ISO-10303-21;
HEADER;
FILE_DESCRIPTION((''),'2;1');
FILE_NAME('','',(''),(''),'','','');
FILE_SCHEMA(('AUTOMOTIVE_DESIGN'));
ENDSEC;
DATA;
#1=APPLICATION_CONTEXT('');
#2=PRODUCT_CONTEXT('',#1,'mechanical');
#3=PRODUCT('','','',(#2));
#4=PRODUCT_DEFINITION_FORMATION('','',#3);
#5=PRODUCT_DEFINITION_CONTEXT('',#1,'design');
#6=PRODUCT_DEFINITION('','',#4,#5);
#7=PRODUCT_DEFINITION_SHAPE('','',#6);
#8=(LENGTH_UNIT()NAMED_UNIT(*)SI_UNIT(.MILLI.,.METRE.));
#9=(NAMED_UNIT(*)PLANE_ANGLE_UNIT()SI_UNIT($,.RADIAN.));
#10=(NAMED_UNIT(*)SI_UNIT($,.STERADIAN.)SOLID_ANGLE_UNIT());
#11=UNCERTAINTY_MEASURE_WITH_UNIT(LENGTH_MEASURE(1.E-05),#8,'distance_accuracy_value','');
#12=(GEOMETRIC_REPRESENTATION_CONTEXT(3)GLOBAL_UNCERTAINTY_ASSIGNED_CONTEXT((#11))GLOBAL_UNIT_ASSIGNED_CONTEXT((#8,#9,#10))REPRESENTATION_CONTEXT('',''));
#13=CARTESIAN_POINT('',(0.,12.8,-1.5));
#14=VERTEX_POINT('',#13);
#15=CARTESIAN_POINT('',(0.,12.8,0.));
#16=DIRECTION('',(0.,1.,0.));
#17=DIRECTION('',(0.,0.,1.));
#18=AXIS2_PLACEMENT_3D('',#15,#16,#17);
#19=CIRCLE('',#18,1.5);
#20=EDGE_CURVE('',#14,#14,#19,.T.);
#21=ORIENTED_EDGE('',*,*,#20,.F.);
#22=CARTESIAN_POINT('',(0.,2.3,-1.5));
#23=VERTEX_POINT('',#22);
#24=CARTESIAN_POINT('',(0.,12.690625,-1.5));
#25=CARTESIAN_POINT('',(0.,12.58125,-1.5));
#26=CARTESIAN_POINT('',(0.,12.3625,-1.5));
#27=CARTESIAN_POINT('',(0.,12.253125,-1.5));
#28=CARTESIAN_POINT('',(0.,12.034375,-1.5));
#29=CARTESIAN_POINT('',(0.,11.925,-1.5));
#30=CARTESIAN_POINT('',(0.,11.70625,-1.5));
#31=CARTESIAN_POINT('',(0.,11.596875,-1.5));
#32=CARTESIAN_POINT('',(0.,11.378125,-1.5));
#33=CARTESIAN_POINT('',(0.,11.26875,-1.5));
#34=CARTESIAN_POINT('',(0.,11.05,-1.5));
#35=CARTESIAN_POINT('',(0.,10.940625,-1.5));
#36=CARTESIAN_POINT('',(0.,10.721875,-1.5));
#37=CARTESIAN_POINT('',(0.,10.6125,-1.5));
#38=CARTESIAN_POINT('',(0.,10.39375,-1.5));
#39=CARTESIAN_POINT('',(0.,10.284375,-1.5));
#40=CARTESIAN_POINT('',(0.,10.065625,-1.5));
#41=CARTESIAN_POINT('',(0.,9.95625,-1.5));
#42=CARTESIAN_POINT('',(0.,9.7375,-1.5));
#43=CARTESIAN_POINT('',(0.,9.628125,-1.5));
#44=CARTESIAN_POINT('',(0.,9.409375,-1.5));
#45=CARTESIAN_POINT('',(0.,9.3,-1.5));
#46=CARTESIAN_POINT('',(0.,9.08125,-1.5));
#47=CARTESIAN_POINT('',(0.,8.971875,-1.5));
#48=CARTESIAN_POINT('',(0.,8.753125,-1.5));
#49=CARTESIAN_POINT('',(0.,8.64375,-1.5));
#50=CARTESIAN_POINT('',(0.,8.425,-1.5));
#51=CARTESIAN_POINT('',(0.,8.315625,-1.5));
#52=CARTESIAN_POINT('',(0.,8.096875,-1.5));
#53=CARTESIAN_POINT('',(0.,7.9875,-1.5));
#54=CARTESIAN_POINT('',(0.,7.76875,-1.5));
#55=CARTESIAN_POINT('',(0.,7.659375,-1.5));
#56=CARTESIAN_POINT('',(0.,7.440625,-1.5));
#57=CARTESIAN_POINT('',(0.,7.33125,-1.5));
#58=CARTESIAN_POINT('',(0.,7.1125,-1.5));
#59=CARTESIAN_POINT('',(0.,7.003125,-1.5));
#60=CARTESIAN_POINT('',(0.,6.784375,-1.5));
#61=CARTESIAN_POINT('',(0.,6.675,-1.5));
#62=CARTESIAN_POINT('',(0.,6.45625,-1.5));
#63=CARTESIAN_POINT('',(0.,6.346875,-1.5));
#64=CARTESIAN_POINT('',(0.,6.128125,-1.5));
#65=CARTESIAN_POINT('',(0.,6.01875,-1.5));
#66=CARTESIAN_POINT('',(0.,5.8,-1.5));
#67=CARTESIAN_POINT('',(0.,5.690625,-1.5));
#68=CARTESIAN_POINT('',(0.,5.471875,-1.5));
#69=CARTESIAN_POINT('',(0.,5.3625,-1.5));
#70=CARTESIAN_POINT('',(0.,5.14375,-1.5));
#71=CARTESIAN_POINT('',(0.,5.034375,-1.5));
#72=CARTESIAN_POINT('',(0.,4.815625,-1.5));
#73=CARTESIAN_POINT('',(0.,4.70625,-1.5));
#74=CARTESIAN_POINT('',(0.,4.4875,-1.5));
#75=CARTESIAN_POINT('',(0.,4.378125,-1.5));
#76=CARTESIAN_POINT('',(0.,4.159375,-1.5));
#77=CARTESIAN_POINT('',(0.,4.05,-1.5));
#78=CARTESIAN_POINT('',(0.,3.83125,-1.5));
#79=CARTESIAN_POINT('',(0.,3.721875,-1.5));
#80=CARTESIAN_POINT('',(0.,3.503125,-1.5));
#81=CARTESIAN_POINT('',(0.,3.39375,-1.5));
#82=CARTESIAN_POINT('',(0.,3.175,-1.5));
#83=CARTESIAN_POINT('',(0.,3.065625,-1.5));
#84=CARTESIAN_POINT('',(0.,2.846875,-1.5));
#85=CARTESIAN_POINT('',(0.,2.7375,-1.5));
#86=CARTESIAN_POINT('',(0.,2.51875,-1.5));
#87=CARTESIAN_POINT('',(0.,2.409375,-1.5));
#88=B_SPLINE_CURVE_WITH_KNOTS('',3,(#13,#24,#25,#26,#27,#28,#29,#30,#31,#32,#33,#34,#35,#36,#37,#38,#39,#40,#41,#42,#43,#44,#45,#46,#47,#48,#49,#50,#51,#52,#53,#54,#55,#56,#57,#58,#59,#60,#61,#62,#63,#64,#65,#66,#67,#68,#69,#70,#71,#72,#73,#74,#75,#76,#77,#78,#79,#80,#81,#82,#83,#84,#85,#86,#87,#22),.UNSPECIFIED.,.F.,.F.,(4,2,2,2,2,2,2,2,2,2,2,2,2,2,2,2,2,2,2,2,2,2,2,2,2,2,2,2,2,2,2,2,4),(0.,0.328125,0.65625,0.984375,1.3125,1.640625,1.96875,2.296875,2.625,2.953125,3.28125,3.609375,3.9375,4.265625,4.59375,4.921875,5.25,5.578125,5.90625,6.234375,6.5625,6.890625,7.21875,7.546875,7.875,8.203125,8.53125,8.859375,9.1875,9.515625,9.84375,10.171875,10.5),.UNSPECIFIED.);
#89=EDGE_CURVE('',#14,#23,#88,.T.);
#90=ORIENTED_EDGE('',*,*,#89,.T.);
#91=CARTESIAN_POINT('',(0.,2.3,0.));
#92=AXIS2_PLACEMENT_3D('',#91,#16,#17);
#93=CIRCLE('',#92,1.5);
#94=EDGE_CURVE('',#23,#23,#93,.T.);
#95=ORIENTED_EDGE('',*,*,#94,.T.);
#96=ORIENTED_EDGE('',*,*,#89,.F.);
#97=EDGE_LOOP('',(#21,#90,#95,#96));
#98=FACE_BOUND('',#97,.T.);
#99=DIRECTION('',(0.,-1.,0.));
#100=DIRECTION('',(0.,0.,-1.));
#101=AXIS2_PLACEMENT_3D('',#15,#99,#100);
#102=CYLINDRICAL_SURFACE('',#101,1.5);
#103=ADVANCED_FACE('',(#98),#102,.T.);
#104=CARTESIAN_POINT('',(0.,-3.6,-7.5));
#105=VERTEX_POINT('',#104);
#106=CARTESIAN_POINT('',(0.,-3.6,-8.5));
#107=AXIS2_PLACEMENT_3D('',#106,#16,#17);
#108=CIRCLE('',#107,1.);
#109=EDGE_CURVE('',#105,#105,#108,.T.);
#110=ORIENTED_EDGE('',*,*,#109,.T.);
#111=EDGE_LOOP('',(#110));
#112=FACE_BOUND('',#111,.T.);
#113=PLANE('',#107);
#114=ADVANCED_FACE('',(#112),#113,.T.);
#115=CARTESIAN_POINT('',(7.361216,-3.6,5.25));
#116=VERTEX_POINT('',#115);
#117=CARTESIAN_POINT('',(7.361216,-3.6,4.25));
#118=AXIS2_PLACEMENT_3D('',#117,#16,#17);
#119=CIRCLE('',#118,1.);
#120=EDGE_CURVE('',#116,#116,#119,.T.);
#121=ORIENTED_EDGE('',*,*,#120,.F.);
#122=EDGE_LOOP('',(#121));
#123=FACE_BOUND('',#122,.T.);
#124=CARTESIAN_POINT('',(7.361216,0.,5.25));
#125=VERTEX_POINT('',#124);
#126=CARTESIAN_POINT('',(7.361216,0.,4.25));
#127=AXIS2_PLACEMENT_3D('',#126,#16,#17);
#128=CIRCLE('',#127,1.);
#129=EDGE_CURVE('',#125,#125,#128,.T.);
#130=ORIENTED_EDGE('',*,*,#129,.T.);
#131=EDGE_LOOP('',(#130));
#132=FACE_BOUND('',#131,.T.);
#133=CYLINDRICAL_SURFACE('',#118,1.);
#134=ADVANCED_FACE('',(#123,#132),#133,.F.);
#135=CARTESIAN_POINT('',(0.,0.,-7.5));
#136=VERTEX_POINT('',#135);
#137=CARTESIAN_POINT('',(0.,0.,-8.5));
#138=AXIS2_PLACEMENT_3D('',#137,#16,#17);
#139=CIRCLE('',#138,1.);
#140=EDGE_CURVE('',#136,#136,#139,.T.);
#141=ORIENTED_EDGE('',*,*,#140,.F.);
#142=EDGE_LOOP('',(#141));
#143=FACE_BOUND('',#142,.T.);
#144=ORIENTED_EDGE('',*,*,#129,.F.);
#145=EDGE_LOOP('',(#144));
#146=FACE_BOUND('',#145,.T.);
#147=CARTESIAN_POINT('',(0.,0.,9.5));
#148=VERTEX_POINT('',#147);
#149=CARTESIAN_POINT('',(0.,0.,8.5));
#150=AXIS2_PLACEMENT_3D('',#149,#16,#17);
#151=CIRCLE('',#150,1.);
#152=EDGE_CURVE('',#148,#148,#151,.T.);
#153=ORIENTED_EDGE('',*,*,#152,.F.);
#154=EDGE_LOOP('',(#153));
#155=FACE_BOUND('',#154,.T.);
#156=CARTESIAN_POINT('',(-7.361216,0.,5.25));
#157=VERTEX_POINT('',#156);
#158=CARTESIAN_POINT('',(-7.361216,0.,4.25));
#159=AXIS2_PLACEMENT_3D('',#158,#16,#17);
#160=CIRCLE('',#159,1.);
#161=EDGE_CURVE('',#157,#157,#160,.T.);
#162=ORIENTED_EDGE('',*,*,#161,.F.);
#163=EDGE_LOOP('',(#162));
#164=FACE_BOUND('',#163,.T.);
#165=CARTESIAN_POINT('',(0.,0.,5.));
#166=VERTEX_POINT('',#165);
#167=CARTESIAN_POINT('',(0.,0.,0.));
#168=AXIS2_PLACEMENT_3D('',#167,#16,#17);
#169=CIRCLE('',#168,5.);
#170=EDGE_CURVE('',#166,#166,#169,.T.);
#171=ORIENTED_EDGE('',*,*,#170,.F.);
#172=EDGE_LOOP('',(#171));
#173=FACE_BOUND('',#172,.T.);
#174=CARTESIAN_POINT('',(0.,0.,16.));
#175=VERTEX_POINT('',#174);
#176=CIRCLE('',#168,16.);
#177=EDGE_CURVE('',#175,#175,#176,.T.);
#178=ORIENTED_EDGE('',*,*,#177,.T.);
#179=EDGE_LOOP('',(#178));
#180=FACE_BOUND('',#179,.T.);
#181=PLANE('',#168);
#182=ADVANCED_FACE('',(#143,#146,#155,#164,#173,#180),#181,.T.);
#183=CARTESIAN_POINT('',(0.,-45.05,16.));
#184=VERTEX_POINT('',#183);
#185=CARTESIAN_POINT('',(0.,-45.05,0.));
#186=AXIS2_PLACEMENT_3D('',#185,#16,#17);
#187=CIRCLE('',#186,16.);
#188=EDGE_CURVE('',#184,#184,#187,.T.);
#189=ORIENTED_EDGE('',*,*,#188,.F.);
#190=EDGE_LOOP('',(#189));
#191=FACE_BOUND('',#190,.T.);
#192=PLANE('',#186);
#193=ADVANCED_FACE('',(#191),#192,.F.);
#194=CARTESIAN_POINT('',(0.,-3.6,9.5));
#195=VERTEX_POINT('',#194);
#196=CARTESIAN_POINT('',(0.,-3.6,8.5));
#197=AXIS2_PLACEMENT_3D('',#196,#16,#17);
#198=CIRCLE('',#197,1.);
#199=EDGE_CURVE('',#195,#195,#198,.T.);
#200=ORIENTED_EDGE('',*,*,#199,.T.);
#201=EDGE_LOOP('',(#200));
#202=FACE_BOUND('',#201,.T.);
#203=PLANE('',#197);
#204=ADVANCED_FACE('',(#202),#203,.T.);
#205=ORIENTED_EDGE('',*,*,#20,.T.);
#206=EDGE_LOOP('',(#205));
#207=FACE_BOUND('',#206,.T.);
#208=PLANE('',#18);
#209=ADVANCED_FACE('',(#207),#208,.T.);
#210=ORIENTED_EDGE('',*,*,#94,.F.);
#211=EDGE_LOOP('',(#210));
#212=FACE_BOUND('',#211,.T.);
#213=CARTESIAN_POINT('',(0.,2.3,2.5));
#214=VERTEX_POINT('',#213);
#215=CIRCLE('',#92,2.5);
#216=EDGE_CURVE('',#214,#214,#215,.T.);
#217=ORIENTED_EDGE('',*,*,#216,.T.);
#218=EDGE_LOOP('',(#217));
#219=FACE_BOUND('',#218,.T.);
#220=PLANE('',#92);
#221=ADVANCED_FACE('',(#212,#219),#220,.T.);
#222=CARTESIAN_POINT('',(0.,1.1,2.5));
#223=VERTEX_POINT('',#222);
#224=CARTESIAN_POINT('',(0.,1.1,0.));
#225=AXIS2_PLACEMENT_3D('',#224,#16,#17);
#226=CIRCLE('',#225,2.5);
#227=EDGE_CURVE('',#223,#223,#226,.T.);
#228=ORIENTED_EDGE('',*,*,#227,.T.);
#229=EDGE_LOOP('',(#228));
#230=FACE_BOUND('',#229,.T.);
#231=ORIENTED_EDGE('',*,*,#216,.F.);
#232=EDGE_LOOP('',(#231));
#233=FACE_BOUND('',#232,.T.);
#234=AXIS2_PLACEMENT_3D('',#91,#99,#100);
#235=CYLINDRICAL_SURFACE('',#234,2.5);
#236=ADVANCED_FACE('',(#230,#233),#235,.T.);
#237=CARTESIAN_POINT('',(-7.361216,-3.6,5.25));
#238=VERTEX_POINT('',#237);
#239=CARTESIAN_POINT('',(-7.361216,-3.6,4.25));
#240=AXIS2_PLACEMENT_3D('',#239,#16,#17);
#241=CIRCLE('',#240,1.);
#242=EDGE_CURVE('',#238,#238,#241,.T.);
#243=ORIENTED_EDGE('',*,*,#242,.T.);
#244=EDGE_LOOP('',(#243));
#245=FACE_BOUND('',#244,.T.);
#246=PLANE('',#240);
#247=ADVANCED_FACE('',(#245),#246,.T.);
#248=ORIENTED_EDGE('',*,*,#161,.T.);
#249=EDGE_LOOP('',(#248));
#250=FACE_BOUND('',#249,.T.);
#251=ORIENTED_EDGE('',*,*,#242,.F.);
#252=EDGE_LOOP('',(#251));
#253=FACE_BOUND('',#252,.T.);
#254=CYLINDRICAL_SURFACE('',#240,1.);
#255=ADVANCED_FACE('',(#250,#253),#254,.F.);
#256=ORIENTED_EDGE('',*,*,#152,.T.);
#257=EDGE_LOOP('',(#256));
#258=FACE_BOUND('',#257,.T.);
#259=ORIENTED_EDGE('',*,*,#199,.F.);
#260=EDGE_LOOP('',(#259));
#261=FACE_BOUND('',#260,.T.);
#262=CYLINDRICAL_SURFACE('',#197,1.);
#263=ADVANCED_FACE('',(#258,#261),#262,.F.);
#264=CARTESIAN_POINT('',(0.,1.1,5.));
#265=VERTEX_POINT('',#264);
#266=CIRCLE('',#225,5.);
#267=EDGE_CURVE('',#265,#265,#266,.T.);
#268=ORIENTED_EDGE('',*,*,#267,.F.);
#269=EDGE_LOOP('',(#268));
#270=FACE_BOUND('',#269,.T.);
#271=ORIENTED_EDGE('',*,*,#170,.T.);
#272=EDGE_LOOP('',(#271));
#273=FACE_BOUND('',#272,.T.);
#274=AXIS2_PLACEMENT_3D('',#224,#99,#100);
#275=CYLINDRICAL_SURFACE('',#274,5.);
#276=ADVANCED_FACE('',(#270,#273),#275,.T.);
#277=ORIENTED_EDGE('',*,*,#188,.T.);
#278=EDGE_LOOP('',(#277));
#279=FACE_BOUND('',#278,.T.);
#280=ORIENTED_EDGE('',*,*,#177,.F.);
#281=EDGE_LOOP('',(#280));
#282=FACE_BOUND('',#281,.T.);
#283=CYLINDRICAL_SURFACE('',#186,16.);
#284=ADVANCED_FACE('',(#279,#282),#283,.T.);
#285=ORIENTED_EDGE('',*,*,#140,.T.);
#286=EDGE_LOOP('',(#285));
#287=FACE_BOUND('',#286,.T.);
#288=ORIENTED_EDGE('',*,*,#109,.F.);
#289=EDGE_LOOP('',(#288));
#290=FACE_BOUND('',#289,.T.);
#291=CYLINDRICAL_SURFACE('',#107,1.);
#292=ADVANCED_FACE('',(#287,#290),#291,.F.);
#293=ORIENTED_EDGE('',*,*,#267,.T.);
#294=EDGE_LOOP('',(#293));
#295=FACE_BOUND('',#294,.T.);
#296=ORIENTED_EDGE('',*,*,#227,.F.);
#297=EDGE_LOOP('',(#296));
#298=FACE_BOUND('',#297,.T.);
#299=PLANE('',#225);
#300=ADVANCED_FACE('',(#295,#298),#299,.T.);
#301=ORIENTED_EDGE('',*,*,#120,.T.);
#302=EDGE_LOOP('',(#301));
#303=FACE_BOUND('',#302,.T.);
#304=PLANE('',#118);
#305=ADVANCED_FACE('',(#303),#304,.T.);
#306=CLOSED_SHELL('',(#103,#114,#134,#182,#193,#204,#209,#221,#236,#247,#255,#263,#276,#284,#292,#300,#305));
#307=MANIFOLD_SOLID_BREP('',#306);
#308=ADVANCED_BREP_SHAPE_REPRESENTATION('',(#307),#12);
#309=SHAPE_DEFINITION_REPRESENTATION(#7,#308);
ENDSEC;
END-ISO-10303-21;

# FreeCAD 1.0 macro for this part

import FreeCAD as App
import Part
import Sketcher
from FreeCAD import Vector

doc = App.newDocument("Part")
body = doc.addObject("PartDesign::Body", "Body")

sketch1 = doc.addObject("Sketcher::SketchObject", "Sketch")
body.addObject(sketch1)
sketch1.AttachmentSupport = (doc.XZ_Plane, [""])
sketch1.MapMode = "FlatFace"
sketch1.addGeometry(Part.Circle(Vector(0, 0, 0), Vector(0, 0, 1), 16), False)
sketch1.addConstraint([
    Sketcher.Constraint("Coincident", 0, 3, -1, 1),
    Sketcher.Constraint("Diameter", 0, 32.0),
])
pad1 = doc.addObject("PartDesign::Pad", "Pad")
body.addObject(pad1)
pad1.Profile = sketch1
pad1.Length = 45.05

sketch2 = doc.addObject("Sketcher::SketchObject", "Sketch001")
body.addObject(sketch2)
sketch2.AttachmentSupport = (doc.XZ_Plane, [""])
sketch2.MapMode = "FlatFace"
sketch2.addGeometry(Part.Circle(Vector(0, 0, 0), Vector(0, 0, 1), 5), False)
sketch2.addConstraint([
    Sketcher.Constraint("Coincident", 0, 3, -1, 1),
    Sketcher.Constraint("Diameter", 0, 10.0),
])
pad2 = doc.addObject("PartDesign::Pad", "Pad001")
body.addObject(pad2)
pad2.Profile = sketch2
pad2.Length = 1.1
pad2.Reversed = True

sketch3 = doc.addObject("Sketcher::SketchObject", "Sketch002")
body.addObject(sketch3)
sketch3.AttachmentSupport = (doc.XZ_Plane, [""])
sketch3.MapMode = "FlatFace"
sketch3.AttachmentOffset = App.Placement(Vector(0, 0, -1.1), App.Rotation())
sketch3.addGeometry(Part.Circle(Vector(0, 0, 0), Vector(0, 0, 1), 2.5), False)
sketch3.addConstraint([
    Sketcher.Constraint("Coincident", 0, 3, -1, 1),
    Sketcher.Constraint("Diameter", 0, 5.0),
])
pad3 = doc.addObject("PartDesign::Pad", "Pad002")
body.addObject(pad3)
pad3.Profile = sketch3
pad3.Length = 1.2
pad3.Reversed = True

sketch4 = doc.addObject("Sketcher::SketchObject", "Sketch003")
body.addObject(sketch4)
sketch4.AttachmentSupport = (doc.XZ_Plane, [""])
sketch4.MapMode = "FlatFace"
sketch4.AttachmentOffset = App.Placement(Vector(0, 0, -2.3), App.Rotation())
sketch4.addGeometry(Part.Circle(Vector(0, 0, 0), Vector(0, 0, 1), 1.5), False)
sketch4.addConstraint([
    Sketcher.Constraint("Coincident", 0, 3, -1, 1),
    Sketcher.Constraint("Diameter", 0, 3.0),
])
pad4 = doc.addObject("PartDesign::Pad", "Pad003")
body.addObject(pad4)
pad4.Profile = sketch4
pad4.Length = 10.5
pad4.Reversed = True

sketch5 = doc.addObject("Sketcher::SketchObject", "Sketch004")
body.addObject(sketch5)
sketch5.AttachmentSupport = (doc.XZ_Plane, [""])
sketch5.MapMode = "FlatFace"
sketch5.addGeometry([
    Part.Circle(Vector(0, -8.5, 0), Vector(0, 0, 1), 1),
    Part.Circle(Vector(0, 8.5, 0), Vector(0, 0, 1), 1),
    Part.Circle(Vector(-7.4, 4.2, 0), Vector(0, 0, 1), 1),
    Part.Circle(Vector(7.4, 4.2, 0), Vector(0, 0, 1), 1),
], False)
sketch5.addConstraint([
    Sketcher.Constraint("Equal", 0, 1),
    Sketcher.Constraint("Equal", 1, 2),
    Sketcher.Constraint("Equal", 2, 3),
    Sketcher.Constraint("Symmetric", 0, 3, 1, 3, -1, 1),
    Sketcher.Constraint("Symmetric", 2, 3, 3, 3, -2),
    Sketcher.Constraint("PointOnObject", 0, 3, -2),
    Sketcher.Constraint("Diameter", 0, 2.0),
    Sketcher.Constraint("DistanceY", 0, 3, 1, 3, 17.0),
    Sketcher.Constraint("DistanceY", -1, 1, 2, 3, 4.25),
    Sketcher.Constraint("DistanceX", 2, 3, 3, 3, 14.722432),
])
pocket1 = doc.addObject("PartDesign::Pocket", "Pocket")
body.addObject(pocket1)
pocket1.Profile = sketch5
pocket1.Length = 3.6
pocket1.Reversed = True

doc.recompute()
